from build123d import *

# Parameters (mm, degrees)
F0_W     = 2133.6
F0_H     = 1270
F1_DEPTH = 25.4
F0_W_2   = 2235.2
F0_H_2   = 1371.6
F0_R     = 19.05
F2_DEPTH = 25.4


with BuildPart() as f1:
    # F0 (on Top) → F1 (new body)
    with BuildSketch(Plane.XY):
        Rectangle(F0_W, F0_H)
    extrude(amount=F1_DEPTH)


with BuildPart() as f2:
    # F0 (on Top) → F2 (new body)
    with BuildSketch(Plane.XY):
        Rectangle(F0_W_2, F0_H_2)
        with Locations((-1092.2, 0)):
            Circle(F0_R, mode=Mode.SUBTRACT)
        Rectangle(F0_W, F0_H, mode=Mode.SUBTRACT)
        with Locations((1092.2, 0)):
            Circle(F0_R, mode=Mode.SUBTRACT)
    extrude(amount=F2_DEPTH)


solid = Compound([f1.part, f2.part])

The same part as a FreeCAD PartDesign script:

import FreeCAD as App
import Part
import Sketcher
from FreeCAD import Vector
Q = App.Units.Quantity

doc = App.newDocument("Part")
body = doc.addObject("PartDesign::Body", "Body")

sketch1 = doc.addObject("Sketcher::SketchObject", "Sketch")
body.addObject(sketch1)
sketch1.AttachmentSupport = (doc.XY_Plane, [""])
sketch1.MapMode = "FlatFace"
sketch1.addGeometry(Part.LineSegment(Vector(-1067, 635, 0), Vector(-1067, -635, 0)), False)
sketch1.addGeometry(Part.LineSegment(Vector(-1067, -635, 0), Vector(1067, -635, 0)), False)
sketch1.addGeometry(Part.LineSegment(Vector(1067, -635, 0), Vector(1067, 635, 0)), False)
sketch1.addGeometry(Part.LineSegment(Vector(1067, 635, 0), Vector(-1067, 635, 0)), False)
sketch1.addConstraint(Sketcher.Constraint("Coincident", 0, 2, 1, 1))
sketch1.addConstraint(Sketcher.Constraint("Coincident", 1, 2, 2, 1))
sketch1.addConstraint(Sketcher.Constraint("Coincident", 2, 2, 3, 1))
sketch1.addConstraint(Sketcher.Constraint("Coincident", 3, 2, 0, 1))
sketch1.addConstraint(Sketcher.Constraint("Vertical", 0))
sketch1.addConstraint(Sketcher.Constraint("Horizontal", 1))
sketch1.addConstraint(Sketcher.Constraint("Vertical", 2))
sketch1.addConstraint(Sketcher.Constraint("Horizontal", 3))
sketch1.addConstraint(Sketcher.Constraint("Symmetric", 0, 2, 2, 2, -1, 1))
sketch1.addConstraint(Sketcher.Constraint("DistanceX", 1, 1, 1, 2, Q("84 in")))
sketch1.addConstraint(Sketcher.Constraint("DistanceY", 0, 2, 0, 1, Q("50 in")))
pad1 = doc.addObject("PartDesign::Pad", "Pad")
body.addObject(pad1)
pad1.Profile = sketch1
pad1.Length = Q("1 in")
body2 = doc.addObject("PartDesign::Body", "Body001")

sketch2 = doc.addObject("Sketcher::SketchObject", "Sketch001")
body2.addObject(sketch2)
sketch2.AttachmentSupport = (doc.getObject("XY_Plane001"), [""])
sketch2.MapMode = "FlatFace"
sketch2.addGeometry(Part.LineSegment(Vector(-1118, 686, 0), Vector(-1118, -686, 0)), False)
sketch2.addGeometry(Part.LineSegment(Vector(-1118, -686, 0), Vector(1118, -686, 0)), False)
sketch2.addGeometry(Part.LineSegment(Vector(1118, -686, 0), Vector(1118, 686, 0)), False)
sketch2.addGeometry(Part.LineSegment(Vector(1118, 686, 0), Vector(-1118, 686, 0)), False)
sketch2.addGeometry(Part.Circle(Vector(-1092, 0, 0), Vector(0, 0, 1), 19), False)
sketch2.addGeometry(Part.LineSegment(Vector(1067, -635, 0), Vector(-1067, -635, 0)), False)
sketch2.addGeometry(Part.LineSegment(Vector(-1067, -635, 0), Vector(-1067, 635, 0)), False)
sketch2.addGeometry(Part.LineSegment(Vector(-1067, 635, 0), Vector(1067, 635, 0)), False)
sketch2.addGeometry(Part.LineSegment(Vector(1067, 635, 0), Vector(1067, -635, 0)), False)
sketch2.addGeometry(Part.Circle(Vector(1092, 0, 0), Vector(0, 0, 1), 19), False)
sketch2.addConstraint(Sketcher.Constraint("Coincident", 0, 2, 1, 1))
sketch2.addConstraint(Sketcher.Constraint("Coincident", 1, 2, 2, 1))
sketch2.addConstraint(Sketcher.Constraint("Coincident", 2, 2, 3, 1))
sketch2.addConstraint(Sketcher.Constraint("Coincident", 3, 2, 0, 1))
sketch2.addConstraint(Sketcher.Constraint("Coincident", 5, 2, 6, 1))
sketch2.addConstraint(Sketcher.Constraint("Coincident", 6, 2, 7, 1))
sketch2.addConstraint(Sketcher.Constraint("Coincident", 7, 2, 8, 1))
sketch2.addConstraint(Sketcher.Constraint("Coincident", 8, 2, 5, 1))
sketch2.addConstraint(Sketcher.Constraint("Vertical", 0))
sketch2.addConstraint(Sketcher.Constraint("Horizontal", 1))
sketch2.addConstraint(Sketcher.Constraint("Vertical", 2))
sketch2.addConstraint(Sketcher.Constraint("Horizontal", 3))
sketch2.addConstraint(Sketcher.Constraint("Horizontal", 5))
sketch2.addConstraint(Sketcher.Constraint("Vertical", 6))
sketch2.addConstraint(Sketcher.Constraint("Horizontal", 7))
sketch2.addConstraint(Sketcher.Constraint("Vertical", 8))
sketch2.addConstraint(Sketcher.Constraint("Equal", 4, 9))
sketch2.addConstraint(Sketcher.Constraint("Symmetric", 4, 3, 9, 3, -1, 1))
sketch2.addConstraint(Sketcher.Constraint("Symmetric", 0, 2, 2, 2, -1, 1))
sketch2.addConstraint(Sketcher.Constraint("Symmetric", 5, 2, 7, 2, -1, 1))
sketch2.addConstraint(Sketcher.Constraint("PointOnObject", 4, 3, -1))
sketch2.addConstraint(Sketcher.Constraint("Diameter", 4, Q("1.5 in")))
sketch2.addConstraint(Sketcher.Constraint("DistanceX", 1, 1, 1, 2, Q("88 in")))
sketch2.addConstraint(Sketcher.Constraint("DistanceX", 5, 2, 5, 1, Q("84 in")))
sketch2.addConstraint(Sketcher.Constraint("DistanceY", 0, 2, 0, 1, Q("54 in")))
sketch2.addConstraint(Sketcher.Constraint("DistanceY", 6, 1, 6, 2, Q("50 in")))
sketch2.addConstraint(Sketcher.Constraint("DistanceX", 4, 3, -1, 1, Q("43 in")))
pad2 = doc.addObject("PartDesign::Pad", "Pad001")
body2.addObject(pad2)
pad2.Profile = sketch2
pad2.Length = Q("1 in")

doc.recompute()
